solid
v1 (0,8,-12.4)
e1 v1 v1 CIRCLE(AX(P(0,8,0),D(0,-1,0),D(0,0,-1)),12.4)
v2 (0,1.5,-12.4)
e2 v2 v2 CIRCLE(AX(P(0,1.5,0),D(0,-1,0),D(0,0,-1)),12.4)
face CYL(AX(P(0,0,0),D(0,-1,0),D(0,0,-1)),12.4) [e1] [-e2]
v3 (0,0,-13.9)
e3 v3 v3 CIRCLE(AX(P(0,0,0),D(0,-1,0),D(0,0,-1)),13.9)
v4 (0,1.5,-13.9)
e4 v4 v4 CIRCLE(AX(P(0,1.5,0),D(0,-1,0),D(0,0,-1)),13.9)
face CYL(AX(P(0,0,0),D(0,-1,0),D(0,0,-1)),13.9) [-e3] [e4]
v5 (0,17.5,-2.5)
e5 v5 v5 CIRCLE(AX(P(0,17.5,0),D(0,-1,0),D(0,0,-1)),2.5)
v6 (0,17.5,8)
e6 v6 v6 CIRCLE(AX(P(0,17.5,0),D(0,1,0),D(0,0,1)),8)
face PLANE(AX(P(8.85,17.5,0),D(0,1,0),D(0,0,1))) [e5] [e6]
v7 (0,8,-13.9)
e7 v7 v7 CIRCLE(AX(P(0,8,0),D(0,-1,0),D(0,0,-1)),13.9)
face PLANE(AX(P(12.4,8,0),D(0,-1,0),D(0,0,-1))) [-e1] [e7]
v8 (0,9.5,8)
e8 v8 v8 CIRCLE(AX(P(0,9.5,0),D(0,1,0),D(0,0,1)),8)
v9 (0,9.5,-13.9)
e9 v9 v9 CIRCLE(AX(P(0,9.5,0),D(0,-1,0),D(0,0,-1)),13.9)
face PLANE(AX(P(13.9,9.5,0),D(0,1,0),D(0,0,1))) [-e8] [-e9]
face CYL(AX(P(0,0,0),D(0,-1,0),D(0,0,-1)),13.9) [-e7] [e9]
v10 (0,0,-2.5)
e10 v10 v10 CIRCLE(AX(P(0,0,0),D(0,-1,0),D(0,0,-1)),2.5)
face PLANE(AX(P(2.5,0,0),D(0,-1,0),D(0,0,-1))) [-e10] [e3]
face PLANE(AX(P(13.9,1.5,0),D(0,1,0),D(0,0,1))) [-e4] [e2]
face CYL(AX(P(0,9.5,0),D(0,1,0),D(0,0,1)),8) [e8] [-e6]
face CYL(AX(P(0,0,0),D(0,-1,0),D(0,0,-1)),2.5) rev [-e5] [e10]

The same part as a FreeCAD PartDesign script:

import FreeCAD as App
import Part
import Sketcher
from FreeCAD import Vector

doc = App.newDocument("Part")
body = doc.addObject("PartDesign::Body", "Body")

sketch1 = body.newObject("Sketcher::SketchObject", "Sketch")
sketch1.AttachmentSupport = (doc.getObject("XY_Plane"), [""])
sketch1.MapMode = "FlatFace"
sketch1.addGeometry([
    Part.LineSegment(Vector(2.5, 0, 0), Vector(13.9, 0, 0)),
    Part.LineSegment(Vector(13.9, 0, 0), Vector(13.9, 1.5, 0)),
    Part.LineSegment(Vector(13.9, 1.5, 0), Vector(12.4, 1.5, 0)),
    Part.LineSegment(Vector(12.4, 1.5, 0), Vector(12.4, 8, 0)),
    Part.LineSegment(Vector(12.4, 8, 0), Vector(13.9, 8, 0)),
    Part.LineSegment(Vector(13.9, 8, 0), Vector(13.9, 9.5, 0)),
    Part.LineSegment(Vector(13.9, 9.5, 0), Vector(8.8, 9.5, 0)),
    Part.LineSegment(Vector(8.8, 9.5, 0), Vector(8.8, 17.5, 0)),
    Part.LineSegment(Vector(8.8, 17.5, 0), Vector(2.5, 17.5, 0)),
    Part.LineSegment(Vector(2.5, 17.5, 0), Vector(2.5, 0, 0)),
], False)
sketch1.addConstraint([
    Sketcher.Constraint("Coincident", 0, 2, 1, 1),
    Sketcher.Constraint("Coincident", 1, 2, 2, 1),
    Sketcher.Constraint("Coincident", 2, 2, 3, 1),
    Sketcher.Constraint("Coincident", 3, 2, 4, 1),
    Sketcher.Constraint("Coincident", 4, 2, 5, 1),
    Sketcher.Constraint("Coincident", 5, 2, 6, 1),
    Sketcher.Constraint("Coincident", 6, 2, 7, 1),
    Sketcher.Constraint("Coincident", 7, 2, 8, 1),
    Sketcher.Constraint("Coincident", 8, 2, 9, 1),
    Sketcher.Constraint("Coincident", 9, 2, 0, 1),
    Sketcher.Constraint("Horizontal", 0),
    Sketcher.Constraint("Vertical", 1),
    Sketcher.Constraint("Horizontal", 2),
    Sketcher.Constraint("Vertical", 3),
    Sketcher.Constraint("Horizontal", 4),
    Sketcher.Constraint("Vertical", 5),
    Sketcher.Constraint("Horizontal", 6),
    Sketcher.Constraint("Vertical", 7),
    Sketcher.Constraint("Horizontal", 8),
    Sketcher.Constraint("Vertical", 9),
    Sketcher.Constraint("PointOnObject", 0, 2, -1),
    Sketcher.Constraint("Vertical", 1, 2, 4, 2),
    Sketcher.Constraint("Equal", 4, 1),
    Sketcher.Constraint("Equal", 1, 5),
    Sketcher.Constraint("DistanceY", 7, 1, 7, 2, 8.0),
    Sketcher.Constraint("DistanceX", 0, 1, 0, 2, 11.4),
    Sketcher.Constraint("DistanceX", 2, 2, 2, 1, 1.5),
    Sketcher.Constraint("DistanceY", 3, 1, 3, 2, 6.5),
    Sketcher.Constraint("DistanceX", 6, 2, 6, 1, 5.05),
    Sketcher.Constraint("DistanceX", -1, 1, 0, 2, 13.9),
])
revolution = body.newObject("PartDesign::Revolution", "Revolution")
revolution.Profile = sketch1
revolution.ReferenceAxis = (sketch1, ["V_Axis"])
revolution.Angle = 360

sketch2 = body.newObject("Sketcher::SketchObject", "Sketch001")
sketch2.AttachmentSupport = (doc.getObject("XZ_Plane"), [""])
sketch2.MapMode = "FlatFace"
sketch2.AttachmentOffset = App.Placement(Vector(0, 0, -17.5), App.Rotation())
sketch2.addGeometry([
    Part.Circle(Vector(0, 0, 0), Vector(0, 0, 1), 9),
    Part.Circle(Vector(0, 0, 0), Vector(0, 0, 1), 8),
], False)
sketch2.addConstraint([
    Sketcher.Constraint("Coincident", 0, 3, -1, 1),
    Sketcher.Constraint("Coincident", 1, 3, -1, 1),
    Sketcher.Constraint("Diameter", 1, 16.0),
    Sketcher.Constraint("Diameter", 0, 17.7),
])
pocket1 = body.newObject("PartDesign::Pocket", "Pocket")
pocket1.Profile = sketch2
pocket1.Length = 8
pocket1.Reversed = True

doc.recompute()
